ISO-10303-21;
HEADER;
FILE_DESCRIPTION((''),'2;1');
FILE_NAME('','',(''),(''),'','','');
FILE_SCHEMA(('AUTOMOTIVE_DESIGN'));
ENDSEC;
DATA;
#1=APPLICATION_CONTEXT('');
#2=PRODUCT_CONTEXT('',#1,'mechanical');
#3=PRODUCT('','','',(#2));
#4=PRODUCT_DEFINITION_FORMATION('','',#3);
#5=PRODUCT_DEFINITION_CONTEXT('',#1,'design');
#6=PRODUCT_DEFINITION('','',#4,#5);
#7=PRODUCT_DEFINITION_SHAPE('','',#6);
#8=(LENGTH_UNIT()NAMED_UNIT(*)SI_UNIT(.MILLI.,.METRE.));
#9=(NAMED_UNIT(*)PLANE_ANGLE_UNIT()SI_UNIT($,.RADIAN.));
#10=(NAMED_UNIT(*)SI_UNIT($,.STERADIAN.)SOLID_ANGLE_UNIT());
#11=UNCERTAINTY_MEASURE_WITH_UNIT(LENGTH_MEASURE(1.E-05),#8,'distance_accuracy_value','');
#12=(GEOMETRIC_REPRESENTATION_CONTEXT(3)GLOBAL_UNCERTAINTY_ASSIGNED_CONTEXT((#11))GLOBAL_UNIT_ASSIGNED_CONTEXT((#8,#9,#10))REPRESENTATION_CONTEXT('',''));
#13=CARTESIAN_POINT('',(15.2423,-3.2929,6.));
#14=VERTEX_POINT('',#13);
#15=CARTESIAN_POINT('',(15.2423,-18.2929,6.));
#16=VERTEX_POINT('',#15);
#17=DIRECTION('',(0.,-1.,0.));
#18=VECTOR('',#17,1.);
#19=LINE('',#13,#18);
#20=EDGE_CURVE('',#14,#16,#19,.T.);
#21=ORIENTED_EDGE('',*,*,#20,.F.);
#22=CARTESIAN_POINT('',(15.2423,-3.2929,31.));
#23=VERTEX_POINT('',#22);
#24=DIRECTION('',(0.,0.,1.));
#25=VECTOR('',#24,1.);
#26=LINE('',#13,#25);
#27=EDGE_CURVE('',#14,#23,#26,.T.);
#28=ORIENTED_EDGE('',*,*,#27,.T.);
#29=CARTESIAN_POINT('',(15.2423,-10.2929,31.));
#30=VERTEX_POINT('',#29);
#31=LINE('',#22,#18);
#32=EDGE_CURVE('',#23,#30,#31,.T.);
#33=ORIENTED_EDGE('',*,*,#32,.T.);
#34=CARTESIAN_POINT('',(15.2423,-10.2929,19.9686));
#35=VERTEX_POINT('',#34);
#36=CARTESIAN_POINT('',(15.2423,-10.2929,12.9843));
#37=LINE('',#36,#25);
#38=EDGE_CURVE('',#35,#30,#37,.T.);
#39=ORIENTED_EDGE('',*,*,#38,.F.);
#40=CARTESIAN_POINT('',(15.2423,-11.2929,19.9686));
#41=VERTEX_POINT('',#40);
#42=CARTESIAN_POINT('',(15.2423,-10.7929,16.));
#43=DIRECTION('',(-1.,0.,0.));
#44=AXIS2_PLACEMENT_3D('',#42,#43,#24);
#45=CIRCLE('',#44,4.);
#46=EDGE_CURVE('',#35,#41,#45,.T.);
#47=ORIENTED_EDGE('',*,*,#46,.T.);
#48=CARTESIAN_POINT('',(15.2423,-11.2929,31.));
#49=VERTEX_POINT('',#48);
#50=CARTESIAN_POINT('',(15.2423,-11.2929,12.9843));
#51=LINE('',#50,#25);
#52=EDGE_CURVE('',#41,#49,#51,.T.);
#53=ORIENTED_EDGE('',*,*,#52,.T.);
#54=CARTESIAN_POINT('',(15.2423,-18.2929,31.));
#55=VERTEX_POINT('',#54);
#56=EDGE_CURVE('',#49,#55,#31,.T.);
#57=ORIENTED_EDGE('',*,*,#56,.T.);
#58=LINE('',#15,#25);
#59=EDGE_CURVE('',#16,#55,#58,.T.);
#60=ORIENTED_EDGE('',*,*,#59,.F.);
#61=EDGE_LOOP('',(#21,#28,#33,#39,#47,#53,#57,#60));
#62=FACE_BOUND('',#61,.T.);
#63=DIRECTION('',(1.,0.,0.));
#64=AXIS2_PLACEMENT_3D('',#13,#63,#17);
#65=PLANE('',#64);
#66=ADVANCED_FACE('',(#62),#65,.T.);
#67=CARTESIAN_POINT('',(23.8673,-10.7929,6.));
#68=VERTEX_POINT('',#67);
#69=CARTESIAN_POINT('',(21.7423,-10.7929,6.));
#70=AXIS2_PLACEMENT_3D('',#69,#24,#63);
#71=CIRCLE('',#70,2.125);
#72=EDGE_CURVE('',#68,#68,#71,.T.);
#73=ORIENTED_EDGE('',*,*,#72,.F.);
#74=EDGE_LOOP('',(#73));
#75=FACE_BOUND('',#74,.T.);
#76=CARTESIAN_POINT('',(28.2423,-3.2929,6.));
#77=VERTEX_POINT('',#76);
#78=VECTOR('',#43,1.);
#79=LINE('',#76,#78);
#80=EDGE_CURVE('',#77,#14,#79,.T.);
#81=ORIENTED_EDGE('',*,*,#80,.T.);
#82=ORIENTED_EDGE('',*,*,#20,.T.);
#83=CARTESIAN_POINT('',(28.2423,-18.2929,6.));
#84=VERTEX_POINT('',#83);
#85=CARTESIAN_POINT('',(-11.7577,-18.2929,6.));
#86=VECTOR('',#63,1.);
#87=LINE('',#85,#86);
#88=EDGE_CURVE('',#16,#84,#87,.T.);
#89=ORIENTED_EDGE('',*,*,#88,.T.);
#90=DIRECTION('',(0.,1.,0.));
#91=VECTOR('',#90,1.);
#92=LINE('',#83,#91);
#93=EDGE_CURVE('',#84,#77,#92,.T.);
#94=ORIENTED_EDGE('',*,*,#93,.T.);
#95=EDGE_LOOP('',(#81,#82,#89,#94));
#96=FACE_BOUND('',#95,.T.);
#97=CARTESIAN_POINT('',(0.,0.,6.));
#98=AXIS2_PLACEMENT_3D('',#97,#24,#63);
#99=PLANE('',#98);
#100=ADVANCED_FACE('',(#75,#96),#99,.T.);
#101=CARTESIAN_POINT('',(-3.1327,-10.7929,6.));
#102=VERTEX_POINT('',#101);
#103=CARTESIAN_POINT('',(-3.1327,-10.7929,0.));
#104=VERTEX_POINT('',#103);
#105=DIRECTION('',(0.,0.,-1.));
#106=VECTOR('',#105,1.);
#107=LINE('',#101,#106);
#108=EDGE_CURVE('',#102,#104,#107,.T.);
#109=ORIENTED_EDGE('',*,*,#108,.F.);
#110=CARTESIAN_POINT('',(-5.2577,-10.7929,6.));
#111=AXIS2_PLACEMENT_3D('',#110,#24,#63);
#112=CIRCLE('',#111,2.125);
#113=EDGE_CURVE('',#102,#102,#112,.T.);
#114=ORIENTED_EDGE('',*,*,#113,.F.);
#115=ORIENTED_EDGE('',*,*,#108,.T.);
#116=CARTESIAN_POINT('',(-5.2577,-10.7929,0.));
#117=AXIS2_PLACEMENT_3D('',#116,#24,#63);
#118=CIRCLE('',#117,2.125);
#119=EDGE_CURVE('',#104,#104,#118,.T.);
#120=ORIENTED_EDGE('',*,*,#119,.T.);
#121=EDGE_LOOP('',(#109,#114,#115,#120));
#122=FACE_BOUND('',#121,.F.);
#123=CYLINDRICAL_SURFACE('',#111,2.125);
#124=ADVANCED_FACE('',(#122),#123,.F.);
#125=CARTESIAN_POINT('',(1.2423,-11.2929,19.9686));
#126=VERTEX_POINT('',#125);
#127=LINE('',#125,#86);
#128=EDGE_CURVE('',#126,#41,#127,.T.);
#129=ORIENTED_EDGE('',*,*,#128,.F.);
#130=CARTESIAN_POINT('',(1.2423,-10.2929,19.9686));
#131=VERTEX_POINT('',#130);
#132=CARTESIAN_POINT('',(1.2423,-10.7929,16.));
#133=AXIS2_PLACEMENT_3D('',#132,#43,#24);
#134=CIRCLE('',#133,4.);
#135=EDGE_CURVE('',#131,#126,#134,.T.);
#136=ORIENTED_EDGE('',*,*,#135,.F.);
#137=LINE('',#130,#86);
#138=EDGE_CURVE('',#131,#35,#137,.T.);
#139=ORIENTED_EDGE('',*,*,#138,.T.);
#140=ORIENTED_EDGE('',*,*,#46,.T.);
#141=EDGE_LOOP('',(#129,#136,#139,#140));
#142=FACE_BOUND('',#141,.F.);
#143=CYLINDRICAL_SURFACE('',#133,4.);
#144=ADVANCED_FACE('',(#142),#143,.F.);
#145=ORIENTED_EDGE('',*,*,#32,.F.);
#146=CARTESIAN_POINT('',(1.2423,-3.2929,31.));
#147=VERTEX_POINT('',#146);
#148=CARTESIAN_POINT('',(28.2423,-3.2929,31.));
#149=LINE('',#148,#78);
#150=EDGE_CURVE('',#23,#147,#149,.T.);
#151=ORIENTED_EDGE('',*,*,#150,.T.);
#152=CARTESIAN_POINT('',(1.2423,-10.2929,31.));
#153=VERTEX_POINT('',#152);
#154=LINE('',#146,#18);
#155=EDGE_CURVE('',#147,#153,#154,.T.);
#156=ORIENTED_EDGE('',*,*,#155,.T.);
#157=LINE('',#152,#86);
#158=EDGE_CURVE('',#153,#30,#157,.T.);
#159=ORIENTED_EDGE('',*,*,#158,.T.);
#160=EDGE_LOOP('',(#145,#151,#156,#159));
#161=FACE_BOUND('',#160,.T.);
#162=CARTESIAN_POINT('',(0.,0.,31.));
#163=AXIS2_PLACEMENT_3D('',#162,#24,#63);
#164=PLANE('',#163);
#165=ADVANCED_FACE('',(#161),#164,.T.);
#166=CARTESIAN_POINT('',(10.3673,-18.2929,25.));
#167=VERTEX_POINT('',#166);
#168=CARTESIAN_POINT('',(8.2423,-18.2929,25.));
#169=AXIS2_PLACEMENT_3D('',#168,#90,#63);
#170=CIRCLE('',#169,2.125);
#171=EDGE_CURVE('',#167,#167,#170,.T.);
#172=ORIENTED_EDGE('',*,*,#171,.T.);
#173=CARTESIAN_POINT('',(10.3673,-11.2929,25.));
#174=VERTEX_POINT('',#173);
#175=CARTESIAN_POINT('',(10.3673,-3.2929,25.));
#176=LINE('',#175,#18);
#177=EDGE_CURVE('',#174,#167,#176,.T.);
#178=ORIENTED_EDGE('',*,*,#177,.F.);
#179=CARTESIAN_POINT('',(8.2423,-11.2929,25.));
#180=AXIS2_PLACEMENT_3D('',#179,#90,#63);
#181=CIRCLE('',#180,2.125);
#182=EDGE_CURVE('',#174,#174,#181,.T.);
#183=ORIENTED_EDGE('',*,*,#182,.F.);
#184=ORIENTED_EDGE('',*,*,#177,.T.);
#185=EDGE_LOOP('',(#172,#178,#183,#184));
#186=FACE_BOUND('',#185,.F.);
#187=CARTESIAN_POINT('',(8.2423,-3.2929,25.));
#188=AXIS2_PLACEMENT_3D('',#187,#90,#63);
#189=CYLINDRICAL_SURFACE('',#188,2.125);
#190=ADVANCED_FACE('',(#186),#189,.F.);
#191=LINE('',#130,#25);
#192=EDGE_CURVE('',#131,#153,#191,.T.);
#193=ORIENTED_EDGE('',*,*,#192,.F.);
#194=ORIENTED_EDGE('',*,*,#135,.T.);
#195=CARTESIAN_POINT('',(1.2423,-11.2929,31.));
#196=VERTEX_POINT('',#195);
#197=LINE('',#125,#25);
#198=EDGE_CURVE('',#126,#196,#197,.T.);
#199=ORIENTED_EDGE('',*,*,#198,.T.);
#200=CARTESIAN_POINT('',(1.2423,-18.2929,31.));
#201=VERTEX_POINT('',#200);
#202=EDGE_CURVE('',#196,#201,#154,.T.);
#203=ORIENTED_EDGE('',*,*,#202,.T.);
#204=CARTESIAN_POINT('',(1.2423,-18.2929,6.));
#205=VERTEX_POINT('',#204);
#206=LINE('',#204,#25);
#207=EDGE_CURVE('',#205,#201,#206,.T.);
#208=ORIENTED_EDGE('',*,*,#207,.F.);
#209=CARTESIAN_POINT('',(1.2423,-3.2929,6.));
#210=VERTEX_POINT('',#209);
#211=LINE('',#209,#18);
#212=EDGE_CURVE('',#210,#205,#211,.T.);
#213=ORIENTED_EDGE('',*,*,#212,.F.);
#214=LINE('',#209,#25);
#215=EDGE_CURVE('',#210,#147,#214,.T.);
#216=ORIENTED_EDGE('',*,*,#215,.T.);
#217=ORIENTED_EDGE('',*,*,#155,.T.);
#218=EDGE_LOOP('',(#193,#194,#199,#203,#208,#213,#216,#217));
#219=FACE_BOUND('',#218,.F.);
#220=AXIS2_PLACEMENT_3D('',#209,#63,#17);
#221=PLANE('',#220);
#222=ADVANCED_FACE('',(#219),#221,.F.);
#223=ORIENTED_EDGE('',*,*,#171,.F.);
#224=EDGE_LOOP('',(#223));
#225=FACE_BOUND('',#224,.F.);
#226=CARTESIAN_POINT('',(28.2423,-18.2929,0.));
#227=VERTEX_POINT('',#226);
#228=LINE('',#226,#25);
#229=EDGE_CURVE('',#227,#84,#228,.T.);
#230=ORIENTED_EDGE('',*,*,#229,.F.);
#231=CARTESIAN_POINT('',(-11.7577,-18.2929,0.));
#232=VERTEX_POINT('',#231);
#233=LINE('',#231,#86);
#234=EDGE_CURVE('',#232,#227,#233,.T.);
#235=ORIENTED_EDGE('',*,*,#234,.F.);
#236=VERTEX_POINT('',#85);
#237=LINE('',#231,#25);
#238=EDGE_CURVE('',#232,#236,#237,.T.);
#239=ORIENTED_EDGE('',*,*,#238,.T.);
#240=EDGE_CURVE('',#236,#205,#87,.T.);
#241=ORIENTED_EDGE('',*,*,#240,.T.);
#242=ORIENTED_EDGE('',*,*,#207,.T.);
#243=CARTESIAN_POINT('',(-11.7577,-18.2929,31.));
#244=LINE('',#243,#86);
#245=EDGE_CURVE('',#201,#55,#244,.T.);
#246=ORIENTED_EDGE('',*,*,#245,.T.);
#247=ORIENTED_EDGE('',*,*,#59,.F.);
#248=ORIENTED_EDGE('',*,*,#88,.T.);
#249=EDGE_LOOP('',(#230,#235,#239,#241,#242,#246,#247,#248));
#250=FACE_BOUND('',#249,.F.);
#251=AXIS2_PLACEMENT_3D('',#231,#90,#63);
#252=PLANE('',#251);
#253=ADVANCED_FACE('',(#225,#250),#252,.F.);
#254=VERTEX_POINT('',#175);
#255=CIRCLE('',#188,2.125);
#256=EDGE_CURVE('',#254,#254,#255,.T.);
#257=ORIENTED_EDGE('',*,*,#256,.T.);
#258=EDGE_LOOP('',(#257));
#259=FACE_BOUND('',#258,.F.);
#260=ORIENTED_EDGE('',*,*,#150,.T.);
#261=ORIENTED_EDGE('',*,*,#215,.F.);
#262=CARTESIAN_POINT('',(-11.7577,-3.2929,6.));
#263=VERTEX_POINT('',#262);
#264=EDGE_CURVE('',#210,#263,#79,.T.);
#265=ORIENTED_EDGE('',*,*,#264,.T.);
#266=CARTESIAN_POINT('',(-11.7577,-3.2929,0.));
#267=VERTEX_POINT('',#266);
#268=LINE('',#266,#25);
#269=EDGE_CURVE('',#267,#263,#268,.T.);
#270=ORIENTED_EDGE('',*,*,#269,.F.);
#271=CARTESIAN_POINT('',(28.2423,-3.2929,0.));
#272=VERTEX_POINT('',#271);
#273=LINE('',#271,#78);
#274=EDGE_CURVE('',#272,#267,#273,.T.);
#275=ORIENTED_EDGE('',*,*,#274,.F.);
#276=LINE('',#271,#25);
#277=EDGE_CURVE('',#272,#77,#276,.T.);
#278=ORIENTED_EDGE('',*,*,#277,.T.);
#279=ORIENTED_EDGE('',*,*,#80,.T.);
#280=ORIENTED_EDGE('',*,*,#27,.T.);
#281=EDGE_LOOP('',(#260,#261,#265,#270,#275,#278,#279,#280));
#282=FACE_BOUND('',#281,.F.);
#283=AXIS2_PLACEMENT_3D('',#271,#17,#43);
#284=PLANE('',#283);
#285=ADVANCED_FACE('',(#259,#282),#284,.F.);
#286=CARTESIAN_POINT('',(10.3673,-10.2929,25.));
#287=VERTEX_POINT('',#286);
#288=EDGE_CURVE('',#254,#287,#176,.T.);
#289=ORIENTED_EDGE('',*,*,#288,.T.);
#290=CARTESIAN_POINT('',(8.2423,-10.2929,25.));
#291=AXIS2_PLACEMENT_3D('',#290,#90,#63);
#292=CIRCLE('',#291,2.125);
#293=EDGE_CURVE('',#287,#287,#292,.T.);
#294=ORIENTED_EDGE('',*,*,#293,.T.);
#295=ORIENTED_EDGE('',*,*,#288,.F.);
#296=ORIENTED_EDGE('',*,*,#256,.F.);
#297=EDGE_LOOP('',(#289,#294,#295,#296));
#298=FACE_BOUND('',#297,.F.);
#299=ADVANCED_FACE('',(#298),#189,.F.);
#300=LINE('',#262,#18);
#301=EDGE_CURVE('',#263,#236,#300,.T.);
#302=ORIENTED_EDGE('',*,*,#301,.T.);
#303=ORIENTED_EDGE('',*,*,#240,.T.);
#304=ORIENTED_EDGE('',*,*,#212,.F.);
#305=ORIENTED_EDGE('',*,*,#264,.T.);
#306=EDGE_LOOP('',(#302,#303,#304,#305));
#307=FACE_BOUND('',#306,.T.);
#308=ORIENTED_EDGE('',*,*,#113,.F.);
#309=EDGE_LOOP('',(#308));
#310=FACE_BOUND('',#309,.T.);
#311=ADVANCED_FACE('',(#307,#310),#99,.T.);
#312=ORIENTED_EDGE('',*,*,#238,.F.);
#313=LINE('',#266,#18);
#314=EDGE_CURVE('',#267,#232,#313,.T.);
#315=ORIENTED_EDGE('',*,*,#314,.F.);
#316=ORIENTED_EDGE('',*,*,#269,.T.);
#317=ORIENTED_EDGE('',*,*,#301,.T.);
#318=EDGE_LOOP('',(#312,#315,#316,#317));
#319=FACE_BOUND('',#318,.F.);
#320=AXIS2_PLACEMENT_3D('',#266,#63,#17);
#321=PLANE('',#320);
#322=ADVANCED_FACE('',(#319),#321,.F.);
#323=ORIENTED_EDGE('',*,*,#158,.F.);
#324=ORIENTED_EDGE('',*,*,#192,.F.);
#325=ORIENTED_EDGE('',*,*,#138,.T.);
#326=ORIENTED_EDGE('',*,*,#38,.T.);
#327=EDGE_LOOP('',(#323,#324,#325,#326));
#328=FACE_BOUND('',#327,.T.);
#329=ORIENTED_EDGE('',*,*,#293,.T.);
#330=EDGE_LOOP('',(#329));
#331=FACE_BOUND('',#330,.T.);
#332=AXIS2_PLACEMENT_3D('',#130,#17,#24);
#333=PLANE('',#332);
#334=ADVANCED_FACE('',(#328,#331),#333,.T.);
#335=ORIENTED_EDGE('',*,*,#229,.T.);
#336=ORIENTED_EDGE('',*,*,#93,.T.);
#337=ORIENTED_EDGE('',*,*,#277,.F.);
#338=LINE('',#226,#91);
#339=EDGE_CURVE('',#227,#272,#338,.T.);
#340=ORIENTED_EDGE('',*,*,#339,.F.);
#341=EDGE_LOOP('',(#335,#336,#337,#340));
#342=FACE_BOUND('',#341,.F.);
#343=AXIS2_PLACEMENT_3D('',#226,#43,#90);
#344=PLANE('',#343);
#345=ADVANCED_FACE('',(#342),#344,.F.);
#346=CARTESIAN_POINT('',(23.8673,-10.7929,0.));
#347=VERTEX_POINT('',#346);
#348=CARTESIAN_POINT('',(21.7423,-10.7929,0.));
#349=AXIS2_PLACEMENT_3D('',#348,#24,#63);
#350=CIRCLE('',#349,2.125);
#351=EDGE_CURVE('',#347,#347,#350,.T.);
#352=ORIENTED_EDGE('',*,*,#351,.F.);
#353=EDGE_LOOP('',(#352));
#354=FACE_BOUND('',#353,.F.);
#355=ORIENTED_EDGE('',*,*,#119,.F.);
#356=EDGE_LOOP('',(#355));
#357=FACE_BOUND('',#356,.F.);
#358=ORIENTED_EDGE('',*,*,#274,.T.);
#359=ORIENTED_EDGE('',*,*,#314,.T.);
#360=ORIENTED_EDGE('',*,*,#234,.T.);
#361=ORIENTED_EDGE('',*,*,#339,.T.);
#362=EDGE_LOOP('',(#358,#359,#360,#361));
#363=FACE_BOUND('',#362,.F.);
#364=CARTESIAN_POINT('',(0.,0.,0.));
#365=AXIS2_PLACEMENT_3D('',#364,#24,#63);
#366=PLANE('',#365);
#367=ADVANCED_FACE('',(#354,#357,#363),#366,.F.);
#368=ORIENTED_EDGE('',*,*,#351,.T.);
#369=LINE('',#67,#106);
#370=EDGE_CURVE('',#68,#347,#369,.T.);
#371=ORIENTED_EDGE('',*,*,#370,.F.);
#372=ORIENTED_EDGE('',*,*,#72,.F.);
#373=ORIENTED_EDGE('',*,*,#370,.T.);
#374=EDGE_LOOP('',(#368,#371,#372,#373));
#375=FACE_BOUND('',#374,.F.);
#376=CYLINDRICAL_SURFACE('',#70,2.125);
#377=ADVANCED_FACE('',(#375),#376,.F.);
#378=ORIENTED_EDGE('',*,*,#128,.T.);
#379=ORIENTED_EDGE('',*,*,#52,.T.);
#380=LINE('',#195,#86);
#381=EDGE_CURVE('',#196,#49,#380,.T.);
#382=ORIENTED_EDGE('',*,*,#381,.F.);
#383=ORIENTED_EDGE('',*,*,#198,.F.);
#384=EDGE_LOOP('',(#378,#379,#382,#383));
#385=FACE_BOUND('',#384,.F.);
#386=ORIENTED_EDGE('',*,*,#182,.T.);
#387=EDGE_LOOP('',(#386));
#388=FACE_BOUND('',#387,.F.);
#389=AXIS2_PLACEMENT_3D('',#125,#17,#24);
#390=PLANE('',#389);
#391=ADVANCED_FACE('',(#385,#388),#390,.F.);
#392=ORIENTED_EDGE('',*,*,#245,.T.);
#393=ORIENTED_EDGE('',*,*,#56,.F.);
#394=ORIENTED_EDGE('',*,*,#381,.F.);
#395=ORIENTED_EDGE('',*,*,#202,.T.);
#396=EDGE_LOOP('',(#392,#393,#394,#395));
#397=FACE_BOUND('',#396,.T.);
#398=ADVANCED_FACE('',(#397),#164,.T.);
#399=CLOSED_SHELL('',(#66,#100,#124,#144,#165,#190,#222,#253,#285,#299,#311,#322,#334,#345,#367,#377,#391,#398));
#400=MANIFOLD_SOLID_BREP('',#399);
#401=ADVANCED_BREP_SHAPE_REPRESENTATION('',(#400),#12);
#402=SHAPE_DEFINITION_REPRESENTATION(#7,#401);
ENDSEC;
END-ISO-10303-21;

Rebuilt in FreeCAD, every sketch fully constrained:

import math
import FreeCAD as App
import Part
import Sketcher
Q = App.Units.Quantity

doc = App.newDocument("Part")
body = doc.addObject("PartDesign::Body", "Body")

sketch1 = doc.addObject("Sketcher::SketchObject", "Sketch")
body.addObject(sketch1)
sketch1.AttachmentSupport = (doc.XY_Plane, [""])
sketch1.MapMode = "FlatFace"
sketch1.addGeometry([
    Part.LineSegment(App.Vector(-12, -3, 0), App.Vector(-12, -18, 0)),
    Part.LineSegment(App.Vector(-12, -18, 0), App.Vector(28, -18, 0)),
    Part.LineSegment(App.Vector(28, -18, 0), App.Vector(28, -3, 0)),
    Part.LineSegment(App.Vector(28, -3, 0), App.Vector(-12, -3, 0)),
], False)
sketch1.addConstraint([
    Sketcher.Constraint("Coincident", 0, 2, 1, 1),
    Sketcher.Constraint("Coincident", 1, 2, 2, 1),
    Sketcher.Constraint("Coincident", 2, 2, 3, 1),
    Sketcher.Constraint("Coincident", 3, 2, 0, 1),
    Sketcher.Constraint("Vertical", 0),
    Sketcher.Constraint("Horizontal", 1),
    Sketcher.Constraint("Vertical", 2),
    Sketcher.Constraint("Horizontal", 3),
    Sketcher.Constraint("DistanceX", 1, 1, 1, 2, Q("40 mm")),
    Sketcher.Constraint("DistanceY", 0, 2, 0, 1, Q("15 mm")),
    Sketcher.Constraint("DistanceY", 0, 2, -1, 1, Q("18.293 mm")),
    Sketcher.Constraint("DistanceX", 0, 2, -1, 1, Q("11.7577 mm")),
])
pad1 = doc.addObject("PartDesign::Pad", "Pad")
body.addObject(pad1)
pad1.Profile = sketch1
pad1.Length = 6

sketch2 = doc.addObject("Sketcher::SketchObject", "Sketch001")
body.addObject(sketch2)
sketch2.AttachmentSupport = (doc.XY_Plane, [""])
sketch2.MapMode = "FlatFace"
sketch2.AttachmentOffset = App.Placement(App.Vector(0, 0, 6), App.Rotation())
sketch2.addGeometry([
    Part.LineSegment(App.Vector(15, -18, 0), App.Vector(15, -3, 0)),
    Part.LineSegment(App.Vector(15, -3, 0), App.Vector(1, -3, 0)),
    Part.LineSegment(App.Vector(1, -3, 0), App.Vector(1, -18, 0)),
    Part.LineSegment(App.Vector(1, -18, 0), App.Vector(15, -18, 0)),
], False)
sketch2.addConstraint([
    Sketcher.Constraint("Coincident", 0, 2, 1, 1),
    Sketcher.Constraint("Coincident", 1, 2, 2, 1),
    Sketcher.Constraint("Coincident", 2, 2, 3, 1),
    Sketcher.Constraint("Coincident", 3, 2, 0, 1),
    Sketcher.Constraint("Vertical", 0),
    Sketcher.Constraint("Horizontal", 1),
    Sketcher.Constraint("Vertical", 2),
    Sketcher.Constraint("Horizontal", 3),
    Sketcher.Constraint("DistanceX", 1, 2, 1, 1, Q("14 mm")),
    Sketcher.Constraint("DistanceY", 0, 1, 0, 2, Q("15 mm")),
    Sketcher.Constraint("DistanceY", 0, 2, -1, 1, Q("3.293 mm")),
    Sketcher.Constraint("DistanceX", -1, 1, 0, 2, Q("15.2423 mm")),
])
pad2 = doc.addObject("PartDesign::Pad", "Pad001")
body.addObject(pad2)
pad2.Profile = sketch2
pad2.Length = 25

sketch3 = doc.addObject("Sketcher::SketchObject", "Sketch002")
body.addObject(sketch3)
sketch3.AttachmentSupport = (doc.XY_Plane, [""])
sketch3.MapMode = "FlatFace"
sketch3.AttachmentOffset = App.Placement(App.Vector(0, 0, 6), App.Rotation())
sketch3.addGeometry([
    Part.Circle(App.Vector(21.7, -10.8, 0), App.Vector(0, 0, 1), 2.1),
    Part.Circle(App.Vector(-5.3, -10.8, 0), App.Vector(0, 0, 1), 2.1),
], False)
sketch3.addConstraint([
    Sketcher.Constraint("Equal", 0, 1),
    Sketcher.Constraint("Horizontal", 0, 3, 1, 3),
    Sketcher.Constraint("Diameter", 0, Q("4.25 mm")),
    Sketcher.Constraint("DistanceX", 1, 3, 0, 3, Q("27 mm")),
    Sketcher.Constraint("DistanceY", 0, 3, -1, 1, Q("10.793 mm")),
    Sketcher.Constraint("DistanceX", -1, 1, 0, 3, Q("21.7423 mm")),
])
pocket1 = doc.addObject("PartDesign::Pocket", "Pocket")
body.addObject(pocket1)
pocket1.Profile = sketch3
pocket1.Type = "UpToFirst"

sketch4 = doc.addObject("Sketcher::SketchObject", "Sketch003")
body.addObject(sketch4)
sketch4.AttachmentSupport = (doc.YZ_Plane, [""])
sketch4.MapMode = "FlatFace"
sketch4.AttachmentOffset = App.Placement(App.Vector(0, 0, 1.2423), App.Rotation())
sketch4.addGeometry([
    Part.ArcOfCircle(Part.Circle(App.Vector(-10.8, 16, 0), App.Vector(0, 0, 1), 4), math.radians(97), math.radians(443)),
    Part.LineSegment(App.Vector(-11.3, 20, 0), App.Vector(-11.3, 31, 0)),
    Part.LineSegment(App.Vector(-11.3, 31, 0), App.Vector(-10.3, 31, 0)),
    Part.LineSegment(App.Vector(-10.3, 31, 0), App.Vector(-10.3, 20, 0)),
], False)
sketch4.addConstraint([
    Sketcher.Constraint("Coincident", 0, 1, 1, 1),
    Sketcher.Constraint("Coincident", 1, 2, 2, 1),
    Sketcher.Constraint("Coincident", 2, 2, 3, 1),
    Sketcher.Constraint("Coincident", 3, 2, 0, 2),
    Sketcher.Constraint("Vertical", 1),
    Sketcher.Constraint("Horizontal", 2),
    Sketcher.Constraint("Vertical", 3),
    Sketcher.Constraint("Horizontal", 0, 1, 3, 2),
    Sketcher.Constraint("Radius", 0, Q("4 mm")),
    Sketcher.Constraint("DistanceX", 2, 1, 2, 2, Q("1 mm")),
    Sketcher.Constraint("DistanceY", -1, 1, 0, 3, Q("16 mm")),
    Sketcher.Constraint("DistanceY", -1, 1, 1, 2, Q("31 mm")),
    Sketcher.Constraint("DistanceX", 0, 3, -1, 1, Q("10.793 mm")),
])
pocket2 = doc.addObject("PartDesign::Pocket", "Pocket001")
body.addObject(pocket2)
pocket2.Profile = sketch4
pocket2.Type = "UpToFirst"
pocket2.Reversed = True

sketch5 = doc.addObject("Sketcher::SketchObject", "Sketch004")
body.addObject(sketch5)
sketch5.AttachmentSupport = (doc.XZ_Plane, [""])
sketch5.MapMode = "FlatFace"
sketch5.AttachmentOffset = App.Placement(App.Vector(0, 0, 3.2929), App.Rotation())
sketch5.addGeometry(Part.Circle(App.Vector(8.2, 25, 0), App.Vector(0, 0, 1), 2.1), False)
sketch5.addConstraint([
    Sketcher.Constraint("Diameter", 0, Q("4.25 mm")),
    Sketcher.Constraint("DistanceY", -1, 1, 0, 3, Q("25 mm")),
    Sketcher.Constraint("DistanceX", -1, 1, 0, 3, Q("8.2423 mm")),
])
pocket3 = doc.addObject("PartDesign::Pocket", "Pocket002")
body.addObject(pocket3)
pocket3.Profile = sketch5
pocket3.Type = "ThroughAll"
pocket3.Reversed = True

doc.recompute()
